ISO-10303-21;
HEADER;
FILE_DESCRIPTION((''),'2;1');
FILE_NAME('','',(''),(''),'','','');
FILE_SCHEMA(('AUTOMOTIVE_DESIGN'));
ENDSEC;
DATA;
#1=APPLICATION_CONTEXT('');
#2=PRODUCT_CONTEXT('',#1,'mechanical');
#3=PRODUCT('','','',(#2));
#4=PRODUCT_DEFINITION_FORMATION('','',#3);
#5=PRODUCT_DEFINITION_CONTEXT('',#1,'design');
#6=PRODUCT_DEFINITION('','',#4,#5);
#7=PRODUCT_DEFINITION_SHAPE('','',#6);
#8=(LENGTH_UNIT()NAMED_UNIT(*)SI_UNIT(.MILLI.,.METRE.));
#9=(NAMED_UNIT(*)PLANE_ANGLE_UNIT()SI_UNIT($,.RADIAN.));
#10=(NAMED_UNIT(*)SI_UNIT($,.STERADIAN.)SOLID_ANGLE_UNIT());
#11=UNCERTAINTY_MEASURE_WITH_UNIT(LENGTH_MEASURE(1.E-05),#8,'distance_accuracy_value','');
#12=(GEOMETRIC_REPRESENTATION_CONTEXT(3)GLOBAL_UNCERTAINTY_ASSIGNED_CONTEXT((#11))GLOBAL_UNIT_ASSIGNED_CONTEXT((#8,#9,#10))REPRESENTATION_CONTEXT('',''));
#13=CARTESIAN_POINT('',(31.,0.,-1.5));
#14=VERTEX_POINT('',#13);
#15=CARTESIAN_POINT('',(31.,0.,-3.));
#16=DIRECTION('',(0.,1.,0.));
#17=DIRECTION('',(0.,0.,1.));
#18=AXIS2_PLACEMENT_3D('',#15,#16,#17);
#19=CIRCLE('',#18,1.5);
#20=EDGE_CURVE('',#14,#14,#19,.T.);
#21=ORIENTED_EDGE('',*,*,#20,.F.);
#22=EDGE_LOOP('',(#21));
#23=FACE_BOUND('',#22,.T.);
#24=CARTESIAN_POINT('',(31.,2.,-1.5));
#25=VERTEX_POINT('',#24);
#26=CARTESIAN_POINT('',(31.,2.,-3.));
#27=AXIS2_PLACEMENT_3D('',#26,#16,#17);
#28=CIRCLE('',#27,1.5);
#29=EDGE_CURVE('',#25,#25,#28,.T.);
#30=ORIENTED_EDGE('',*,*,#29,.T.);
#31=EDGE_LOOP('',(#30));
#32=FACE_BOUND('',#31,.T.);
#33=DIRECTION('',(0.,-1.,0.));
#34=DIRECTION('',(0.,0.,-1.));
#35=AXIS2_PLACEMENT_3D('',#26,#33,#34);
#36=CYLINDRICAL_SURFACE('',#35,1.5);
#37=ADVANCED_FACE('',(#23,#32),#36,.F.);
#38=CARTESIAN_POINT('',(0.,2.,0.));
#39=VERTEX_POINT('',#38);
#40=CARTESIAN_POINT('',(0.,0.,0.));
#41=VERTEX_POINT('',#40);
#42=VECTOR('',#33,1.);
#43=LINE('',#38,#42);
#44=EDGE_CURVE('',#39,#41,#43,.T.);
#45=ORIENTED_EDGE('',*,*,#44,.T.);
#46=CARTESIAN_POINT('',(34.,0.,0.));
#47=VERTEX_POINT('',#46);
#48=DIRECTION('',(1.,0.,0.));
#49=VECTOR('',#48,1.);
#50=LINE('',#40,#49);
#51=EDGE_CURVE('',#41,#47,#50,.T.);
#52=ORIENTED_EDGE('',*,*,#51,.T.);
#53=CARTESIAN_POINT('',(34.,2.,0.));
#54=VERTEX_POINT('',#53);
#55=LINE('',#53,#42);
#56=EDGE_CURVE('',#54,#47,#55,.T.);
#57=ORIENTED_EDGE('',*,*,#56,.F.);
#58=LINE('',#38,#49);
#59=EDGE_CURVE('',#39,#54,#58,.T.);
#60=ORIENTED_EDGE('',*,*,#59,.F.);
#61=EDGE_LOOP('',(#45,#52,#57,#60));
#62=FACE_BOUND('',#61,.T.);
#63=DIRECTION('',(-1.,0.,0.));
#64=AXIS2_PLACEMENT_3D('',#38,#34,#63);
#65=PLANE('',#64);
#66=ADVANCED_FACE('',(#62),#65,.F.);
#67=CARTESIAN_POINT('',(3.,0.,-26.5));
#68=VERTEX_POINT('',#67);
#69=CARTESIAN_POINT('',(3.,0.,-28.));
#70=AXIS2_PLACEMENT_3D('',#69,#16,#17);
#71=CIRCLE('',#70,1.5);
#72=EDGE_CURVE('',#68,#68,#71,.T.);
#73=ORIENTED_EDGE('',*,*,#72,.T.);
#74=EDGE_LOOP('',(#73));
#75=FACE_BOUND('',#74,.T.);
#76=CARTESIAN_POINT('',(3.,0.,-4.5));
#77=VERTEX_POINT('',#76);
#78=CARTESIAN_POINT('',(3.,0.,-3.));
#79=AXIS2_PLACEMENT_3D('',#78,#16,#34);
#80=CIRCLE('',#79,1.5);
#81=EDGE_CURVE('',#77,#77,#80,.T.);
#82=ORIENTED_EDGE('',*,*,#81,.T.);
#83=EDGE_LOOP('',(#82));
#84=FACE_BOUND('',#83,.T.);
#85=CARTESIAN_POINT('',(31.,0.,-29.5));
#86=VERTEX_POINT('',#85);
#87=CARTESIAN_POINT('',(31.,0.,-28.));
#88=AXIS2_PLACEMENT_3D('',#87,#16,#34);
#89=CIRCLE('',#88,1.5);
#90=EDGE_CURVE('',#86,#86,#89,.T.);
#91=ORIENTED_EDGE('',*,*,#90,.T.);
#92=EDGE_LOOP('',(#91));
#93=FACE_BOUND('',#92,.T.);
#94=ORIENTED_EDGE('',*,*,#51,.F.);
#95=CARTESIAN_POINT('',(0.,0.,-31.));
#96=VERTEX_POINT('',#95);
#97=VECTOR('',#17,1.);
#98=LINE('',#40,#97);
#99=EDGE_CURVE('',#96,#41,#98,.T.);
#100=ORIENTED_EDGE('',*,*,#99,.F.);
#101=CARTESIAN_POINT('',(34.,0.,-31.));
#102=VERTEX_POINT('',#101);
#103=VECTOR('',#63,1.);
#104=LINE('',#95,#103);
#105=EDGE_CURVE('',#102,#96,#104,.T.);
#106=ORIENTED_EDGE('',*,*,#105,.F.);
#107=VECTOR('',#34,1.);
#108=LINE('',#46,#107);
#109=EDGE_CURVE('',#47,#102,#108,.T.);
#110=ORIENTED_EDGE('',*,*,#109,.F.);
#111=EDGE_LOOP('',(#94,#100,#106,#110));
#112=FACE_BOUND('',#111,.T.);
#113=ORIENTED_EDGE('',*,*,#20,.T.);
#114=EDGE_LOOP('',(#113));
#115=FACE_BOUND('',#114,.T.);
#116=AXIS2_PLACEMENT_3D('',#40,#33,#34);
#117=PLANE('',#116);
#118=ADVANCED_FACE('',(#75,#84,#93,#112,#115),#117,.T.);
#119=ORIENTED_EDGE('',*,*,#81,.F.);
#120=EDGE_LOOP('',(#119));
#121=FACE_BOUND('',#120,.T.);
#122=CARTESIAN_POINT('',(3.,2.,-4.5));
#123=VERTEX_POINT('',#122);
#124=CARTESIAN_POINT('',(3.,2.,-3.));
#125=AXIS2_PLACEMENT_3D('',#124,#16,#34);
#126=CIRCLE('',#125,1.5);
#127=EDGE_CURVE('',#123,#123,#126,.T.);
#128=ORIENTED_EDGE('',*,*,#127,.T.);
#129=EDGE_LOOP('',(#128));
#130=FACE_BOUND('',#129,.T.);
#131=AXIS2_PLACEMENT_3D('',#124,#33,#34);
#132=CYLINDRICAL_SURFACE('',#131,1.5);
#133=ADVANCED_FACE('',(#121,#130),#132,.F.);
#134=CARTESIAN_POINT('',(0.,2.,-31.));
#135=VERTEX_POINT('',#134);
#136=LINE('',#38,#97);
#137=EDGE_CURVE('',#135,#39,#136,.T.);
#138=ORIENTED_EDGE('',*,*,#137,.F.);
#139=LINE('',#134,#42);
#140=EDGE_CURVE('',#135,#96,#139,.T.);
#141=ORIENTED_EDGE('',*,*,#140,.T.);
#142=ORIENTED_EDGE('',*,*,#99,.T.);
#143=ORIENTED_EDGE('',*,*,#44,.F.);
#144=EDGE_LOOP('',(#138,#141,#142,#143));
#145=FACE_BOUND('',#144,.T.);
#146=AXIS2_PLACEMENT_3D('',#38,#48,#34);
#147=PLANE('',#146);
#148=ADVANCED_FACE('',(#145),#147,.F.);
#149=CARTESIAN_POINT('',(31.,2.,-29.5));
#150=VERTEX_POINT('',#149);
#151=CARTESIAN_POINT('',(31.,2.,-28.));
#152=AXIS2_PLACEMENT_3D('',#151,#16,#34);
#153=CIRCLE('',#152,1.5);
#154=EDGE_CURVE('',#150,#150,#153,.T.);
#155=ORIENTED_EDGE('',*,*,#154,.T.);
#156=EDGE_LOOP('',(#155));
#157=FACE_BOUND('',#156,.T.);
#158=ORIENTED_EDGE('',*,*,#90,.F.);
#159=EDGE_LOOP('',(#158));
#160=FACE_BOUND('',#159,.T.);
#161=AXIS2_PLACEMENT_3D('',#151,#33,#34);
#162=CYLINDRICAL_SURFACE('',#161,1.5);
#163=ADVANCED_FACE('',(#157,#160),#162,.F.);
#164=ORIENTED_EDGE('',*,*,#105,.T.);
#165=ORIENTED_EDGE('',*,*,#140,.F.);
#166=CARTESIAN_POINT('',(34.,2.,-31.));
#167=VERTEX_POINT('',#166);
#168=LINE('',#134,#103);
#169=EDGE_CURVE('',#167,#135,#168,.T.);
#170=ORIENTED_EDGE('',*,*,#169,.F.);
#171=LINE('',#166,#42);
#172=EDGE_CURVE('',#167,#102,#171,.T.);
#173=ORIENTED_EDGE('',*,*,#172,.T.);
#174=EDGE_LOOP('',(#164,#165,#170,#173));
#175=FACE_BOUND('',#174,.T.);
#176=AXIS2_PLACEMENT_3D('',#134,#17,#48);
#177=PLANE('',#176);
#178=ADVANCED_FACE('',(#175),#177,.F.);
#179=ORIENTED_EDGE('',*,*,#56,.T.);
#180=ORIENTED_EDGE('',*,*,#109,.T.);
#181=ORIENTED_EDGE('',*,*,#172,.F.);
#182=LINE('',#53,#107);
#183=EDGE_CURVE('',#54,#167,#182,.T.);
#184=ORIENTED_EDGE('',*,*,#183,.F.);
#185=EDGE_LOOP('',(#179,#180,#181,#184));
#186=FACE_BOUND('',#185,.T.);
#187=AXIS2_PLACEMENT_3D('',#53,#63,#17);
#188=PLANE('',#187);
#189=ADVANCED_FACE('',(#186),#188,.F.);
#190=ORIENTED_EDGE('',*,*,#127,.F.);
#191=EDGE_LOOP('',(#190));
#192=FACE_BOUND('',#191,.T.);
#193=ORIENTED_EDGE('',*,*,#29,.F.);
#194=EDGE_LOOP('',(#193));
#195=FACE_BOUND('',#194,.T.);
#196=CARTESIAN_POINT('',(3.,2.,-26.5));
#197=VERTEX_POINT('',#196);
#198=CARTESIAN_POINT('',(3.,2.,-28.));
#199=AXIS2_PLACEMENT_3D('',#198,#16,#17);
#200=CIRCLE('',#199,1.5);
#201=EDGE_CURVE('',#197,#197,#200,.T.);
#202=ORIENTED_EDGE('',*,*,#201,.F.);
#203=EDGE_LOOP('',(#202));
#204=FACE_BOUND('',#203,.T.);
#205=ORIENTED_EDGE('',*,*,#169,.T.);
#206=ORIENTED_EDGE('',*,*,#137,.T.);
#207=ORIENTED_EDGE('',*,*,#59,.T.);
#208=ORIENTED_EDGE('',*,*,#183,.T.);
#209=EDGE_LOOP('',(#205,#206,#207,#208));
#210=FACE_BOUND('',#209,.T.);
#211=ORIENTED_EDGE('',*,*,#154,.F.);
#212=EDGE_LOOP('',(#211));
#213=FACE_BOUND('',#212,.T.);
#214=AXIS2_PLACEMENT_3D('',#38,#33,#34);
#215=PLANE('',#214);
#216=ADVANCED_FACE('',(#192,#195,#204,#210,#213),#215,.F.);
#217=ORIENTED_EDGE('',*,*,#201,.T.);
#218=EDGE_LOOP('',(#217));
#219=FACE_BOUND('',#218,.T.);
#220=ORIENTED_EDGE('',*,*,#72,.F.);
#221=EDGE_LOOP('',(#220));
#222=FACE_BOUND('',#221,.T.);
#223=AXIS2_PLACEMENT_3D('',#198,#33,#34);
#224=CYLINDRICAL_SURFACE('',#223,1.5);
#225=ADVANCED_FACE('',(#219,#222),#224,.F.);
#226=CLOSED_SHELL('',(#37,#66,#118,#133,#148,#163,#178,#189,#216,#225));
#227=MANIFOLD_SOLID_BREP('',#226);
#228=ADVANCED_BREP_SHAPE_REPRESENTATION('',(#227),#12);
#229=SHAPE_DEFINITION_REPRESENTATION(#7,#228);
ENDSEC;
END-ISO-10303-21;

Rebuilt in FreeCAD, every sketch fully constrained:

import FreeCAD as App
import Part
import Sketcher

V = App.Vector


def add_polygon(sketch, points):
    """Adds a closed chain of lines whose ends are joined by coincident constraints."""
    first, n = sketch.GeometryCount, len(points)
    for a, b in zip(points, points[1:] + points[:1]):
        sketch.addGeometry(Part.LineSegment(App.Vector(*a, 0), App.Vector(*b, 0)), False)
    for i in range(n):
        sketch.addConstraint(Sketcher.Constraint("Coincident", first + i, 2, first + (i + 1) % n, 1))

doc = App.newDocument("Part")
params = doc.addObject("Spreadsheet::Sheet", "Params")
for row, (alias, value) in enumerate([
    ("sketch1_diameter", "3 mm"),
    ("sketch1_width", "34 mm"),
    ("sketch1_height", "31 mm"),
    ("pad1_length", "2 mm"),
], start=1):
    params.set(f"A{row}", alias)
    params.set(f"B{row}", "=" + value)
    params.setAlias(f"B{row}", alias)

body = doc.addObject("PartDesign::Body", "Body")

# Sketch on XZ plane
sketch1 = doc.addObject("Sketcher::SketchObject", "Sketch")
body.addObject(sketch1)
sketch1.AttachmentSupport = (doc.XZ_Plane, [""])
sketch1.MapMode = "FlatFace"
add_polygon(sketch1, [(0, -31), (0, 0), (34, 0), (34, -31)])  # lines 0-3
sketch1.addGeometry(Part.Circle(V(3, -3, 0), V(0, 0, 1), 1.5), False)  # 4
sketch1.addGeometry(Part.Circle(V(31, -3, 0), V(0, 0, 1), 1.5), False)  # 5
sketch1.addGeometry(Part.Circle(V(3, -28, 0), V(0, 0, 1), 1.5), False)  # 6
sketch1.addGeometry(Part.Circle(V(31, -28, 0), V(0, 0, 1), 1.5), False)  # 7
sketch1.addConstraint([
    Sketcher.Constraint("Vertical", 0),
    Sketcher.Constraint("Horizontal", 1),
    Sketcher.Constraint("Vertical", 2),
    Sketcher.Constraint("Horizontal", 3),
    Sketcher.Constraint("Coincident", 0, 2, -1, 1),
    Sketcher.Constraint("Equal", 4, 5),
    Sketcher.Constraint("Equal", 5, 6),
    Sketcher.Constraint("Equal", 6, 7),
    Sketcher.Constraint("Horizontal", 4, 3, 5, 3),
    Sketcher.Constraint("Horizontal", 6, 3, 7, 3),
    Sketcher.Constraint("Vertical", 4, 3, 6, 3),
    Sketcher.Constraint("Vertical", 5, 3, 7, 3),
    Sketcher.Constraint("Diameter", 4, 3.0),
    Sketcher.Constraint("DistanceX", 1, 1, 1, 2, 34.0),
    Sketcher.Constraint("DistanceY", 0, 1, 0, 2, 31.0),
    Sketcher.Constraint("DistanceX", -1, 1, 4, 3, 3.0),
    Sketcher.Constraint("DistanceY", 4, 3, -1, 1, 3.0),
    Sketcher.Constraint("DistanceX", -1, 1, 5, 3, 31.0),
    Sketcher.Constraint("DistanceY", 6, 3, -1, 1, 28.0),
])
sketch1.setExpression("Constraints[16]", "Params.sketch1_diameter")
sketch1.setExpression("Constraints[17]", "Params.sketch1_width")
sketch1.setExpression("Constraints[18]", "Params.sketch1_height")
pad1 = doc.addObject("PartDesign::Pad", "Pad")
body.addObject(pad1)
pad1.Profile = sketch1
pad1.setExpression("Length", "Params.pad1_length")
pad1.Reversed = True

doc.recompute()
